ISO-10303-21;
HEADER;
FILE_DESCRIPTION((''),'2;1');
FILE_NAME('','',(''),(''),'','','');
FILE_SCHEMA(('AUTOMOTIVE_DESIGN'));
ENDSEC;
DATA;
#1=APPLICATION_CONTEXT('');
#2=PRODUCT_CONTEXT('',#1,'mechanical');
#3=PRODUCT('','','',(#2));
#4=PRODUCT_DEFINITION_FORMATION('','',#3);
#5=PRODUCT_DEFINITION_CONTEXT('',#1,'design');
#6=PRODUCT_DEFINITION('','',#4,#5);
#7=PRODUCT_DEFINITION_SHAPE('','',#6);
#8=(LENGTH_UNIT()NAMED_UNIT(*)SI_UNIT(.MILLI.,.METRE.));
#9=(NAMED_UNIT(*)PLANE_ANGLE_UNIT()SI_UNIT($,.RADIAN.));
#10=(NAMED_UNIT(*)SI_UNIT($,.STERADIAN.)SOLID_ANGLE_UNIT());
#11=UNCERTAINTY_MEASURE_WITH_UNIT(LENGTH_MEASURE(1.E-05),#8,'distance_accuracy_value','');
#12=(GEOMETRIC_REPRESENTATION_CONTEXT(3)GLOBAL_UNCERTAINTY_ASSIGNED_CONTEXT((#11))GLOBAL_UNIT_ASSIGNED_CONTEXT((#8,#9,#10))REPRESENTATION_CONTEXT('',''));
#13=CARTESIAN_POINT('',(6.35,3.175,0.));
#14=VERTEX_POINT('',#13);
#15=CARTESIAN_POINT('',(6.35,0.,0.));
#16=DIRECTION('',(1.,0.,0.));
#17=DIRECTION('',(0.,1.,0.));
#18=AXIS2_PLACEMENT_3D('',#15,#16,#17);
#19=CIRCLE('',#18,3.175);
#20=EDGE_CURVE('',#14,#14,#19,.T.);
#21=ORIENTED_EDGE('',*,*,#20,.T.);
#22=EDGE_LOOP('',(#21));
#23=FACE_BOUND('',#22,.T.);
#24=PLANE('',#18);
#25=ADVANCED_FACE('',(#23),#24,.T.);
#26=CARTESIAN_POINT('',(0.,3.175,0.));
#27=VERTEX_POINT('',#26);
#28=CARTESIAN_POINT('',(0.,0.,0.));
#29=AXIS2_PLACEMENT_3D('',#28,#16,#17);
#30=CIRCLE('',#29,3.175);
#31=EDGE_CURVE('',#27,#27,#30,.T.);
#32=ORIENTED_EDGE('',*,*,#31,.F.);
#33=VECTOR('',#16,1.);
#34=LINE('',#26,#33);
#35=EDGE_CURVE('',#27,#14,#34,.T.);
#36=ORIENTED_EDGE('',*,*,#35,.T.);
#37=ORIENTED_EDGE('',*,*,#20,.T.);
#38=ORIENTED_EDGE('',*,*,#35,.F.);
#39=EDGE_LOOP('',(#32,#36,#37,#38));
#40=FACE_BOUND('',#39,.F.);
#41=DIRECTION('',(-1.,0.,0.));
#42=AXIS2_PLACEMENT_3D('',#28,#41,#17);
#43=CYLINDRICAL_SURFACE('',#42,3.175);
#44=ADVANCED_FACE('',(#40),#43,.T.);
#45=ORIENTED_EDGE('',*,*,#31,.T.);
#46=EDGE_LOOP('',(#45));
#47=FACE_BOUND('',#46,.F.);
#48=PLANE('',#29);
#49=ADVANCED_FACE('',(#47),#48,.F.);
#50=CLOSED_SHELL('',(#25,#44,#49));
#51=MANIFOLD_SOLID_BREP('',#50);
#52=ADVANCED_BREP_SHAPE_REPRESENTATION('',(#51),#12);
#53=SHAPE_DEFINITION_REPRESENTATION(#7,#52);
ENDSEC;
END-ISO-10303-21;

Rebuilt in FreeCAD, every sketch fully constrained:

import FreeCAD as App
import Part
import Sketcher
Q = App.Units.Quantity

doc = App.newDocument("Part")
body = doc.addObject("PartDesign::Body", "Body")

# Sketch on YZ plane
sketch1 = doc.addObject("Sketcher::SketchObject", "Sketch")
body.addObject(sketch1)
sketch1.AttachmentSupport = (doc.YZ_Plane, [""])
sketch1.MapMode = "FlatFace"
sketch1.addGeometry(Part.Circle(App.Vector(0, 0, 0), App.Vector(0, 0, 1), 3.175), False)
sketch1.addConstraint(Sketcher.Constraint("Coincident", 0, 3, -1, 1))
sketch1.addConstraint(Sketcher.Constraint("Diameter", 0, Q("0.25 in")))
pad1 = doc.addObject("PartDesign::Pad", "Pad")
body.addObject(pad1)
pad1.Profile = sketch1
pad1.Length = Q("0.25 in")

doc.recompute()
